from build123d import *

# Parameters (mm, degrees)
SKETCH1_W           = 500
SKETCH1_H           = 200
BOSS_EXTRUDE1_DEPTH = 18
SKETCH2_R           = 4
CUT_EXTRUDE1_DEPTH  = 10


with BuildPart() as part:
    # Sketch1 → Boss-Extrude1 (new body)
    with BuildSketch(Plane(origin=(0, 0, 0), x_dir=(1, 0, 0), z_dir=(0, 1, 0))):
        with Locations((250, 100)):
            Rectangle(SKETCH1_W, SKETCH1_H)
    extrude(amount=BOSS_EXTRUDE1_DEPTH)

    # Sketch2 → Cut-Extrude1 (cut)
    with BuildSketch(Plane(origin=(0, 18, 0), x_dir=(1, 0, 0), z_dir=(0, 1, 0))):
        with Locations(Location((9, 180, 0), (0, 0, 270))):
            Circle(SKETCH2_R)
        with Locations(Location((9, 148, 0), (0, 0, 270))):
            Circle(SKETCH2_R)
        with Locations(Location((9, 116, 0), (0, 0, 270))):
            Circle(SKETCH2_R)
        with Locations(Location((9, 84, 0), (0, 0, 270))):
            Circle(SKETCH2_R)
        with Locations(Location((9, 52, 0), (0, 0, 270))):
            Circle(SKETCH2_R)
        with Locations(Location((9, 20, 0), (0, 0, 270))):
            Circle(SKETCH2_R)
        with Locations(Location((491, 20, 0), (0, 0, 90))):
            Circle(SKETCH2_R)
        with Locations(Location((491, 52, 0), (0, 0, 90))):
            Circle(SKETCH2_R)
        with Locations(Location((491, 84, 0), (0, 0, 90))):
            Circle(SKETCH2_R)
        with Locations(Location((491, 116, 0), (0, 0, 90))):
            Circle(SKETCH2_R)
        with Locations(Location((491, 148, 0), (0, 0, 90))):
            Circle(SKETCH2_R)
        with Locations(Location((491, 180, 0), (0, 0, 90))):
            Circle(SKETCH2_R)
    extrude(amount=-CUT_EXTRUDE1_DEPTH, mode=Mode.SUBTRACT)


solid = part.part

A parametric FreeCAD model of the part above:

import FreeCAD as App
import Part
import Sketcher
from FreeCAD import Vector
Q = App.Units.Quantity


def add_polygon(sketch, points):
    """Adds a closed chain of lines whose ends are joined by coincident constraints."""
    first, n = sketch.GeometryCount, len(points)
    for a, b in zip(points, points[1:] + points[:1]):
        sketch.addGeometry(Part.LineSegment(App.Vector(*a, 0), App.Vector(*b, 0)), False)
    for i in range(n):
        sketch.addConstraint(Sketcher.Constraint("Coincident", first + i, 2, first + (i + 1) % n, 1))

doc = App.newDocument("Part")
params = doc.addObject("Spreadsheet::Sheet", "Params")
for row, (alias, value) in enumerate([
    ("sketch1_width", "500 mm"),
    ("sketch1_height", "200 mm"),
    ("pad1_length", "18 mm"),
    ("sketch2_diameter", "8 mm"),
    ("pocket1_length", "10 mm"),
], start=1):
    params.set(f"A{row}", alias)
    params.set(f"B{row}", "=" + value)
    params.setAlias(f"B{row}", alias)

body = doc.addObject("PartDesign::Body", "Body")

# Sketch on XZ plane
sketch1 = body.newObject("Sketcher::SketchObject", "Sketch")
sketch1.AttachmentSupport = (doc.getObject("XZ_Plane"), [""])
sketch1.MapMode = "FlatFace"
add_polygon(sketch1, [(0, -200), (0, 0), (500, 0), (500, -200)])  # lines 0-3
sketch1.addConstraint([
    Sketcher.Constraint("Vertical", 0),
    Sketcher.Constraint("Horizontal", 1),
    Sketcher.Constraint("Vertical", 2),
    Sketcher.Constraint("Horizontal", 3),
    Sketcher.Constraint("Coincident", 0, 2, -1, 1),
    Sketcher.Constraint("DistanceX", 1, 1, 1, 2, Q("500 mm")),
    Sketcher.Constraint("DistanceY", 0, 1, 0, 2, Q("200 mm")),
])
sketch1.setExpression("Constraints[9]", "Params.sketch1_width")
sketch1.setExpression("Constraints[10]", "Params.sketch1_height")
pad1 = body.newObject("PartDesign::Pad", "Pad")
pad1.Profile = sketch1
pad1.setExpression("Length", "Params.pad1_length")
pad1.Reversed = True

# Sketch on XZ plane
sketch2 = body.newObject("Sketcher::SketchObject", "Sketch001")
sketch2.AttachmentSupport = (doc.getObject("XZ_Plane"), [""])
sketch2.MapMode = "FlatFace"
sketch2.AttachmentOffset = App.Placement(Vector(0, 0, -18), App.Rotation())
sketch2.addGeometry([
    Part.Circle(Vector(9, -180, 0), Vector(0, 0, 1), 4),  # 0
    Part.Circle(Vector(9, -148, 0), Vector(0, 0, 1), 4),  # 1
    Part.Circle(Vector(9, -116, 0), Vector(0, 0, 1), 4),  # 2
    Part.Circle(Vector(9, -84, 0), Vector(0, 0, 1), 4),  # 3
    Part.Circle(Vector(9, -52, 0), Vector(0, 0, 1), 4),  # 4
    Part.Circle(Vector(9, -20, 0), Vector(0, 0, 1), 4),  # 5
    Part.Circle(Vector(491, -20, 0), Vector(0, 0, 1), 4),  # 6
    Part.Circle(Vector(491, -52, 0), Vector(0, 0, 1), 4),  # 7
    Part.Circle(Vector(491, -84, 0), Vector(0, 0, 1), 4),  # 8
    Part.Circle(Vector(491, -116, 0), Vector(0, 0, 1), 4),  # 9
    Part.Circle(Vector(491, -148, 0), Vector(0, 0, 1), 4),  # 10
    Part.Circle(Vector(491, -180, 0), Vector(0, 0, 1), 4),  # 11
], False)
sketch2.addConstraint([
    Sketcher.Constraint("Equal", 0, 1),
    Sketcher.Constraint("Equal", 1, 2),
    Sketcher.Constraint("Equal", 2, 3),
    Sketcher.Constraint("Equal", 3, 4),
    Sketcher.Constraint("Equal", 4, 5),
    Sketcher.Constraint("Equal", 5, 6),
    Sketcher.Constraint("Equal", 6, 7),
    Sketcher.Constraint("Equal", 7, 8),
    Sketcher.Constraint("Equal", 8, 9),
    Sketcher.Constraint("Equal", 9, 10),
    Sketcher.Constraint("Equal", 10, 11),
    Sketcher.Constraint("Horizontal", 5, 3, 6, 3),
    Sketcher.Constraint("Horizontal", 4, 3, 7, 3),
    Sketcher.Constraint("Horizontal", 3, 3, 8, 3),
    Sketcher.Constraint("Horizontal", 2, 3, 9, 3),
    Sketcher.Constraint("Horizontal", 1, 3, 10, 3),
    Sketcher.Constraint("Horizontal", 0, 3, 11, 3),
    Sketcher.Constraint("Vertical", 0, 3, 1, 3),
    Sketcher.Constraint("Vertical", 1, 3, 2, 3),
    Sketcher.Constraint("Vertical", 2, 3, 3, 3),
    Sketcher.Constraint("Vertical", 3, 3, 4, 3),
    Sketcher.Constraint("Vertical", 4, 3, 5, 3),
    Sketcher.Constraint("Vertical", 6, 3, 7, 3),
    Sketcher.Constraint("Vertical", 7, 3, 8, 3),
    Sketcher.Constraint("Vertical", 8, 3, 9, 3),
    Sketcher.Constraint("Vertical", 9, 3, 10, 3),
    Sketcher.Constraint("Vertical", 10, 3, 11, 3),
    Sketcher.Constraint("Diameter", 0, Q("8 mm")),
    Sketcher.Constraint("DistanceX", -1, 1, 0, 3, Q("9 mm")),
    Sketcher.Constraint("DistanceY", 0, 3, -1, 1, Q("180 mm")),
    Sketcher.Constraint("DistanceY", 1, 3, -1, 1, Q("148 mm")),
    Sketcher.Constraint("DistanceY", 2, 3, -1, 1, Q("116 mm")),
    Sketcher.Constraint("DistanceY", 3, 3, -1, 1, Q("84 mm")),
    Sketcher.Constraint("DistanceY", 4, 3, -1, 1, Q("52 mm")),
    Sketcher.Constraint("DistanceY", 5, 3, -1, 1, Q("20 mm")),
    Sketcher.Constraint("DistanceX", -1, 1, 6, 3, Q("491 mm")),
])
sketch2.setExpression("Constraints[27]", "Params.sketch2_diameter")
pocket1 = body.newObject("PartDesign::Pocket", "Pocket")
pocket1.Profile = sketch2
pocket1.setExpression("Length", "Params.pocket1_length")
pocket1.Reversed = True

doc.recompute()
